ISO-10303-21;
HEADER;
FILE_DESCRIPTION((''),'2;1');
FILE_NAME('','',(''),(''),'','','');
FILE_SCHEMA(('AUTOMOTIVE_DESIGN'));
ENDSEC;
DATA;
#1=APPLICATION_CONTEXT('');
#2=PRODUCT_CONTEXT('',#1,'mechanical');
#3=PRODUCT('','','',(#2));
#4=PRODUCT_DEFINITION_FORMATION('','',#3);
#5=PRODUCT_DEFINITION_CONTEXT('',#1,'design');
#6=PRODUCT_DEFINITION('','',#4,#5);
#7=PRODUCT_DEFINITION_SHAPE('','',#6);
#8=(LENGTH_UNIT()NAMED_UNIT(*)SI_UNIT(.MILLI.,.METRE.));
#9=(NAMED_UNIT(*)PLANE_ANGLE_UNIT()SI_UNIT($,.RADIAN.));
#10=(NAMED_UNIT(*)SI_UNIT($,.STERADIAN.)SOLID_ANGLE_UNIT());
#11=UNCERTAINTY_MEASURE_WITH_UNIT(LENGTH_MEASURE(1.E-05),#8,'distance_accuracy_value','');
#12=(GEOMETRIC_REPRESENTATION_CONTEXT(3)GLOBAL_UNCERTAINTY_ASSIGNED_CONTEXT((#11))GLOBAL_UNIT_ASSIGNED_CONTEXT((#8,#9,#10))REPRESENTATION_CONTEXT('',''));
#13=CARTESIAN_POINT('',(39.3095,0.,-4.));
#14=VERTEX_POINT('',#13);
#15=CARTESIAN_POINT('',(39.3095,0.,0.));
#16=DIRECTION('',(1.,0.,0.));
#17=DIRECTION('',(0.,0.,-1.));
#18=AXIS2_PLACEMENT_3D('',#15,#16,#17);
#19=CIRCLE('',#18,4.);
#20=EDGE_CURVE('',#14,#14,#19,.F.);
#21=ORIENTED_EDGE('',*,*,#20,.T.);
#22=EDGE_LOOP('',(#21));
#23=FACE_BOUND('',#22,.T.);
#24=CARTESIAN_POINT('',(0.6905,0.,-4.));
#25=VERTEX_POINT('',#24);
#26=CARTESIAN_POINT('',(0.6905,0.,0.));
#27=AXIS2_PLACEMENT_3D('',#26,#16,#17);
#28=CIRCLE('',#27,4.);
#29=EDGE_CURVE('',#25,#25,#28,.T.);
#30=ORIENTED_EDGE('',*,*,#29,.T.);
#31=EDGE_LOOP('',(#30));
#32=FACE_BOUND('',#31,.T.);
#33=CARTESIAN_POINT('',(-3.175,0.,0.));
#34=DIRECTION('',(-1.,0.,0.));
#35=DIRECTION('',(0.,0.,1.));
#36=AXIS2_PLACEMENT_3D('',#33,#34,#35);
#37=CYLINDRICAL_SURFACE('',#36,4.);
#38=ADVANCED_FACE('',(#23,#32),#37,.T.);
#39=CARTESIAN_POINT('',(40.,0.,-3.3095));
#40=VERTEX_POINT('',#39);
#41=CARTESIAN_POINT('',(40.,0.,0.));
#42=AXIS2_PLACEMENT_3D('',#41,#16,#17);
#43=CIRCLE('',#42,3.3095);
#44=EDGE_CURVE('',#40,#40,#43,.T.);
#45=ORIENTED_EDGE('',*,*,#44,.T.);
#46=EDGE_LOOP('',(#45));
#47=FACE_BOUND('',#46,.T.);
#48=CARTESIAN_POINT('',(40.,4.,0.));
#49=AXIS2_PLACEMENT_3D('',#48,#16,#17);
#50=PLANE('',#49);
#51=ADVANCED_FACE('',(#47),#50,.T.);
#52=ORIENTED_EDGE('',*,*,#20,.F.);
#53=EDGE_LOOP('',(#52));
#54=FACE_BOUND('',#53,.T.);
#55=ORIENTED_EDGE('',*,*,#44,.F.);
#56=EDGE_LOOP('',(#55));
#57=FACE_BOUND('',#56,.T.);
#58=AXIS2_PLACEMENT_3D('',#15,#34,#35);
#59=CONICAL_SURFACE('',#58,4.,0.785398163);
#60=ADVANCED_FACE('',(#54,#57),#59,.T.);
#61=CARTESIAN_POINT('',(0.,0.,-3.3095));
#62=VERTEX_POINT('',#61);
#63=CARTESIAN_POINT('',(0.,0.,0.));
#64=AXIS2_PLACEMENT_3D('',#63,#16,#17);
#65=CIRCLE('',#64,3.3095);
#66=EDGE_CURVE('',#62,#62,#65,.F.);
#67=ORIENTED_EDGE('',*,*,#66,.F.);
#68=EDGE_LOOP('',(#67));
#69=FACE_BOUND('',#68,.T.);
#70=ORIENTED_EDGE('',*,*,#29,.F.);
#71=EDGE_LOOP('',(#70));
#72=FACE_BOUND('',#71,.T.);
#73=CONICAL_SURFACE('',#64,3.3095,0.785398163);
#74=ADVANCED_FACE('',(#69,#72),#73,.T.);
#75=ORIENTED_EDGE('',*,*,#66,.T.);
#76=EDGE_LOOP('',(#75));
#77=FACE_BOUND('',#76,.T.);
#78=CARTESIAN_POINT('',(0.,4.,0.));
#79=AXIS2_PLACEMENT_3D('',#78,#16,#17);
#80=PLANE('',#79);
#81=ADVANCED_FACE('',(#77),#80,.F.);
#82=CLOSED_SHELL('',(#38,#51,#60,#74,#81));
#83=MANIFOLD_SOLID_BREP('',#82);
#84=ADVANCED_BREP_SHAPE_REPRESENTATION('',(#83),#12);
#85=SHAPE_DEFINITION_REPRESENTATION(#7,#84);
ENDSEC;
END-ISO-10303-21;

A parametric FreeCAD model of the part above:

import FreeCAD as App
import Part
import Sketcher

V = App.Vector


def edges_at(feature, points):
    """Names of the edges that pass closest to the given points."""
    edges = feature.Shape.Edges
    near = lambda p: min(range(len(edges)), key=lambda i: edges[i].distToShape(Part.Vertex(*p))[0])
    return sorted({f"Edge{near(p) + 1}" for p in points})


def add_polygon(sketch, points):
    """Adds a closed chain of lines whose ends are joined by coincident constraints."""
    first, n = sketch.GeometryCount, len(points)
    for a, b in zip(points, points[1:] + points[:1]):
        sketch.addGeometry(Part.LineSegment(App.Vector(*a, 0), App.Vector(*b, 0)), False)
    for i in range(n):
        sketch.addConstraint(Sketcher.Constraint("Coincident", first + i, 2, first + (i + 1) % n, 1))

doc = App.newDocument("Part")
body = doc.addObject("PartDesign::Body", "Body")

sketch1 = doc.addObject("Sketcher::SketchObject", "Sketch")
body.addObject(sketch1)
sketch1.AttachmentSupport = (doc.XY_Plane, [""])
sketch1.MapMode = "FlatFace"
add_polygon(sketch1, [(0, 4), (0, 0), (40, 0), (40, 4)])
sketch1.addConstraint(Sketcher.Constraint("Vertical", 0))
sketch1.addConstraint(Sketcher.Constraint("Horizontal", 1))
sketch1.addConstraint(Sketcher.Constraint("Vertical", 2))
sketch1.addConstraint(Sketcher.Constraint("Horizontal", 3))
sketch1.addConstraint(Sketcher.Constraint("Coincident", 0, 2, -1, 1))
sketch1.addConstraint(Sketcher.Constraint("DistanceX", 1, 1, 1, 2, 40.0))
sketch1.addConstraint(Sketcher.Constraint("DistanceY", 0, 2, 0, 1, 4.0))
revolution = doc.addObject("PartDesign::Revolution", "Revolution")
body.addObject(revolution)
revolution.Profile = sketch1
revolution.ReferenceAxis = (sketch1, ["H_Axis"])
revolution.Angle = 360
doc.recompute()

chamfer = doc.addObject("PartDesign::Chamfer", "Chamfer")
body.addObject(chamfer)
chamfer.Base = (revolution, edges_at(revolution, [(0, 0, -4), (40, 0, -4)]))
chamfer.Size = 0.6905

doc.recompute()
